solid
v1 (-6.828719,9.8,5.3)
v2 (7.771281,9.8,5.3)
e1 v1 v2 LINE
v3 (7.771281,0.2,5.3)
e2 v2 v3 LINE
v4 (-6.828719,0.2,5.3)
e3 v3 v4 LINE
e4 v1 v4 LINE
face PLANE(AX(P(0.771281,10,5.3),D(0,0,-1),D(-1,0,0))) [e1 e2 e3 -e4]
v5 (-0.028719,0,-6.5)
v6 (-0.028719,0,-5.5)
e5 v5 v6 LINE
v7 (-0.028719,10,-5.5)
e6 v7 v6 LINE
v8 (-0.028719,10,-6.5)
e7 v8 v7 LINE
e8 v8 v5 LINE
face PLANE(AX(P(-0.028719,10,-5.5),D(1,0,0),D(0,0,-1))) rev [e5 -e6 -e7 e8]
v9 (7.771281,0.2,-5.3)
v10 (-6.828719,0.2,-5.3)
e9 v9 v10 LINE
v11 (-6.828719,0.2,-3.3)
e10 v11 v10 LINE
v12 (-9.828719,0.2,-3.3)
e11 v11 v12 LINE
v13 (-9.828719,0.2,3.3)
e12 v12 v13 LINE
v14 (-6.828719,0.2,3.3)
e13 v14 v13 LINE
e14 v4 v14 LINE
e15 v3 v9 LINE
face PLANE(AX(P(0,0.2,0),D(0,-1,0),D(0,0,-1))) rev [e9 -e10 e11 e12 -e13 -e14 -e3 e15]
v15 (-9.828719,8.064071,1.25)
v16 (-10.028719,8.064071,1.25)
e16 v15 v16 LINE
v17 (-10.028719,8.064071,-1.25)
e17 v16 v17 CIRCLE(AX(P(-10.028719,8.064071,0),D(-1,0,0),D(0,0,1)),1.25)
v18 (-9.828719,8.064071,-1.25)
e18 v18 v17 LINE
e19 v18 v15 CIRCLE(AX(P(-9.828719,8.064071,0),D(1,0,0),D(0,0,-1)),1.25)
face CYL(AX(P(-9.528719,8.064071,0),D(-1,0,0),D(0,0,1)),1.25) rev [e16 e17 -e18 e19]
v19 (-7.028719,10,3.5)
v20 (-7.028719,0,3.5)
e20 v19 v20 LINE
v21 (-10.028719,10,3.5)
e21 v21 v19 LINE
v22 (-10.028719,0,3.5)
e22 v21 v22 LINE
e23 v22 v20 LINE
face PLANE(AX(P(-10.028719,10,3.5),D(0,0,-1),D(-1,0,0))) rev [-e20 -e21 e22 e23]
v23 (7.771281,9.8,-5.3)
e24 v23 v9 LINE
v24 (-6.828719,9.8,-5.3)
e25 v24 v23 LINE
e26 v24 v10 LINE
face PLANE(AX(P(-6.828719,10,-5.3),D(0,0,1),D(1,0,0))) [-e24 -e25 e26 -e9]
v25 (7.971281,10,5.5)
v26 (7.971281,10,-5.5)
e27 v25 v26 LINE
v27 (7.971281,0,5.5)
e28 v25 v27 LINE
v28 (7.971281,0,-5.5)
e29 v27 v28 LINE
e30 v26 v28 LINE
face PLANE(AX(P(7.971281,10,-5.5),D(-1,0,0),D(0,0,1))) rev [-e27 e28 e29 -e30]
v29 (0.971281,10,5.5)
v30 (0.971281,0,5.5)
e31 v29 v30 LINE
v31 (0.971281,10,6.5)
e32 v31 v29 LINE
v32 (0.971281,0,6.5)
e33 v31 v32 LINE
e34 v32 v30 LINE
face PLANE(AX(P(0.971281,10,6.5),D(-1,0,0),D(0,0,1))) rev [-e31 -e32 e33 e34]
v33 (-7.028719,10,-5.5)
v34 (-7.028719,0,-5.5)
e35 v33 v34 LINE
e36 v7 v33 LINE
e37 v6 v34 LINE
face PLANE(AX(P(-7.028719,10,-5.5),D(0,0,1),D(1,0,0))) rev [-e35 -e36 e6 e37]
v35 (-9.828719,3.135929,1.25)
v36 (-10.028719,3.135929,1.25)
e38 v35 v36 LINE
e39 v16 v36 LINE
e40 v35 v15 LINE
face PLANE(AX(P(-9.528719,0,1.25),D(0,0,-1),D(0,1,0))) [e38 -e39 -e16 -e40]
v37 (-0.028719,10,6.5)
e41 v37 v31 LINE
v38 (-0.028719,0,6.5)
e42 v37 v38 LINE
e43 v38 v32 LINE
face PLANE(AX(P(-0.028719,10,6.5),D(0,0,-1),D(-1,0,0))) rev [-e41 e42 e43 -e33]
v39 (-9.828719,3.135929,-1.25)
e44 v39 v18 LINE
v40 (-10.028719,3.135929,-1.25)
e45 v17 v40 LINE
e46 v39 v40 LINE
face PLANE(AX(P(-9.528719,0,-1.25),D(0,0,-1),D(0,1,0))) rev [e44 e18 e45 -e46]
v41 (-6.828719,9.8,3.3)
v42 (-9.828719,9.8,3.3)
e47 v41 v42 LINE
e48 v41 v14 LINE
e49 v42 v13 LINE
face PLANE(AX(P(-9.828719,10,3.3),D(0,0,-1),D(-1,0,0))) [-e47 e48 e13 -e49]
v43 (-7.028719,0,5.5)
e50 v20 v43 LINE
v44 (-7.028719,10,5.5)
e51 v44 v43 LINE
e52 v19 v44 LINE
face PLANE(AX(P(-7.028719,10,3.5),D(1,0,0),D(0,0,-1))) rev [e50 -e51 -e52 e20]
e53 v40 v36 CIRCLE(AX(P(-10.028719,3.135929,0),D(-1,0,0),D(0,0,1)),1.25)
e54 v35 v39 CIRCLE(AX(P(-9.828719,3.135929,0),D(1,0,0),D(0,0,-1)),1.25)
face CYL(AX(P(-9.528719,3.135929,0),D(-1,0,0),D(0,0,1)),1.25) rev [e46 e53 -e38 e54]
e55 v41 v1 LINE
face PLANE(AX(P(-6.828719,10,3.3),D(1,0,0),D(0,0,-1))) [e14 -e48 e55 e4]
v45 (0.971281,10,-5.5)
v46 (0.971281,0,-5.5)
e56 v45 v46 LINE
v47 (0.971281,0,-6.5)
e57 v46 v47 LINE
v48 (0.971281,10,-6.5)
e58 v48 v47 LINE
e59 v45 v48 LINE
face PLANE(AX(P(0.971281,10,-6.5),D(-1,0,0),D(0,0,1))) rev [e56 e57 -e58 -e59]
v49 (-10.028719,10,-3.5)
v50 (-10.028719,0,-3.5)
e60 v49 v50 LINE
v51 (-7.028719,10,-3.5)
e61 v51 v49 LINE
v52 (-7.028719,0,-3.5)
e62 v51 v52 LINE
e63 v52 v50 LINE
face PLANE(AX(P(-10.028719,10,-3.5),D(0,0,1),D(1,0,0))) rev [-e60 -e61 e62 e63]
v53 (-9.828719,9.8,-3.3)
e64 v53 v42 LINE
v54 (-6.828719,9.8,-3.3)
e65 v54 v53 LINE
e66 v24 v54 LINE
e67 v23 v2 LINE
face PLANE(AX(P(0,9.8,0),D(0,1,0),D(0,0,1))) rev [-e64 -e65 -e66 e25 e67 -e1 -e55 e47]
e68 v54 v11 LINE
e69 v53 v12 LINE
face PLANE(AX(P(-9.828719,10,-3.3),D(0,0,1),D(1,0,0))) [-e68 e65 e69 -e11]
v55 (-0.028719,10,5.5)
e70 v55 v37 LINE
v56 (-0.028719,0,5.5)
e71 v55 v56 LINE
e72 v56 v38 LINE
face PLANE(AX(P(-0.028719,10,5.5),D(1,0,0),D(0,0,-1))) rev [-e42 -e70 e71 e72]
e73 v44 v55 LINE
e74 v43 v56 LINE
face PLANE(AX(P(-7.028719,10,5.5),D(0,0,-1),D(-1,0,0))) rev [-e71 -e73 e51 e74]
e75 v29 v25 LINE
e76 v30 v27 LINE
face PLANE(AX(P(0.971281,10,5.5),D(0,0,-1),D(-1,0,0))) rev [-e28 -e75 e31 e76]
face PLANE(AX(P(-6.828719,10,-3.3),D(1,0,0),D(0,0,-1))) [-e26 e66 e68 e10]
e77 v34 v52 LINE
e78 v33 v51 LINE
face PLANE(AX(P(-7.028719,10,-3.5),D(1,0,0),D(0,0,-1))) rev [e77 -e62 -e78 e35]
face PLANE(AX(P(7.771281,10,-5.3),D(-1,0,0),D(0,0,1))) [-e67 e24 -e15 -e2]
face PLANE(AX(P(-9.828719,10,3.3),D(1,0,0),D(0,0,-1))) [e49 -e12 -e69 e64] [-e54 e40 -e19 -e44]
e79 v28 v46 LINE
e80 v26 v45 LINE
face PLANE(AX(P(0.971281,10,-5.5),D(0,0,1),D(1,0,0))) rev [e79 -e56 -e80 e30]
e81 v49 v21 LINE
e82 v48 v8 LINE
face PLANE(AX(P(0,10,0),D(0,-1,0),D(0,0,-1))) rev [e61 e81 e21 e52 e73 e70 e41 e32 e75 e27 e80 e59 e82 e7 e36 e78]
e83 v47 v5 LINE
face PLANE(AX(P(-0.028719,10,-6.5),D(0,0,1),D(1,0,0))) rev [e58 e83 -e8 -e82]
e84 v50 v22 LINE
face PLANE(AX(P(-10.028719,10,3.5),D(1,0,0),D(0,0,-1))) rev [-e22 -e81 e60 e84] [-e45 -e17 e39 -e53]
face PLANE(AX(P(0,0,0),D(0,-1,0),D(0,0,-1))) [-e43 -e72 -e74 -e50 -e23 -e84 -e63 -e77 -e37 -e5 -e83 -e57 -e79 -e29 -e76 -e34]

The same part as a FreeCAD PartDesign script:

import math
import FreeCAD as App
import Part
import Sketcher
from FreeCAD import Vector
Q = App.Units.Quantity


def add_polygon(sketch, points):
    """Adds a closed chain of lines whose ends are joined by coincident constraints."""
    first, n = sketch.GeometryCount, len(points)
    for a, b in zip(points, points[1:] + points[:1]):
        sketch.addGeometry(Part.LineSegment(App.Vector(*a, 0), App.Vector(*b, 0)), False)
    for i in range(n):
        sketch.addConstraint(Sketcher.Constraint("Coincident", first + i, 2, first + (i + 1) % n, 1))

doc = App.newDocument("Part")
params = doc.addObject("Spreadsheet::Sheet", "Params")
for row, (alias, value) in enumerate([
    ("sketch1_width", "3 mm"),
    ("sketch1_width2", "7 mm"),
    ("sketch1_width3", "1 mm"),
    ("sketch1_height", "2 mm"),
    ("sketch1_width4", "14.6 mm"),
    ("pad1_length", "10 mm"),
    ("sketch2_width", "3 mm"),
    ("sketch2_height", "2 mm"),
    ("sketch2_width2", "14.6 mm"),
    ("sketch2_height2", "10.6 mm"),
    ("pad2_length", "0.2 mm"),
    ("sketch3_width", "3 mm"),
    ("sketch3_height", "2 mm"),
    ("sketch3_width2", "14.6 mm"),
    ("sketch3_height2", "10.6 mm"),
    ("pad3_length", "0.2 mm"),
    ("sketch4_radius", "1.25 mm"),
    ("pocket1_length", "0.5 mm"),
], start=1):
    params.set(f"A{row}", alias)
    params.set(f"B{row}", "=" + value)
    params.setAlias(f"B{row}", alias)

body = doc.addObject("PartDesign::Body", "Body")

# Sketch on XZ plane
sketch1 = body.newObject("Sketcher::SketchObject", "Sketch")
sketch1.AttachmentSupport = (doc.getObject("XZ_Plane"), [""])
sketch1.MapMode = "FlatFace"
add_polygon(sketch1, [(-10.028719, -3.5), (-10.028719, 3.5), (-7.028719, 3.5), (-7.028719, 5.5), (-0.028719, 5.5), (-0.028719, 6.5), (0.971281, 6.5), (0.971281, 5.5), (7.971281, 5.5), (7.971281, -5.5), (0.971281, -5.5), (0.971281, -6.5), (-0.028719, -6.5), (-0.028719, -5.5), (-7.028719, -5.5), (-7.028719, -3.5)])  # lines 0-15
add_polygon(sketch1, [(-9.828719, -3.3), (-6.828719, -3.3), (-6.828719, -5.3), (7.771281, -5.3), (7.771281, 5.3), (-6.828719, 5.3), (-6.828719, 3.3), (-9.828719, 3.3)])  # lines 16-23
sketch1.addConstraint([
    Sketcher.Constraint("Vertical", 0),
    Sketcher.Constraint("Horizontal", 1),
    Sketcher.Constraint("Vertical", 2),
    Sketcher.Constraint("Horizontal", 3),
    Sketcher.Constraint("Vertical", 4),
    Sketcher.Constraint("Horizontal", 5),
    Sketcher.Constraint("Vertical", 6),
    Sketcher.Constraint("Horizontal", 7),
    Sketcher.Constraint("Vertical", 8),
    Sketcher.Constraint("Horizontal", 9),
    Sketcher.Constraint("Vertical", 10),
    Sketcher.Constraint("Horizontal", 11),
    Sketcher.Constraint("Vertical", 12),
    Sketcher.Constraint("Horizontal", 13),
    Sketcher.Constraint("Vertical", 14),
    Sketcher.Constraint("Horizontal", 15),
    Sketcher.Constraint("Horizontal", 16),
    Sketcher.Constraint("Vertical", 17),
    Sketcher.Constraint("Horizontal", 18),
    Sketcher.Constraint("Vertical", 19),
    Sketcher.Constraint("Horizontal", 20),
    Sketcher.Constraint("Vertical", 21),
    Sketcher.Constraint("Horizontal", 22),
    Sketcher.Constraint("Vertical", 23),
    Sketcher.Constraint("Symmetric", 6, 2, 9, 2, -1),
    Sketcher.Constraint("Symmetric", 4, 2, 11, 2, -1),
    Sketcher.Constraint("Symmetric", 2, 2, 13, 2, -1),
    Sketcher.Constraint("Symmetric", 17, 2, 20, 2, -1),
    Sketcher.Constraint("Horizontal", 3, 2, 6, 2),
    Sketcher.Constraint("Equal", 3, 7),
    Sketcher.Constraint("Equal", 15, 16),
    Sketcher.Constraint("Equal", 13, 0),
    Sketcher.Constraint("Equal", 11, 4),
    Sketcher.Constraint("Equal", 2, 14),
    Sketcher.Constraint("Equal", 14, 17),
    Sketcher.Constraint("Equal", 17, 21),
    Sketcher.Constraint("DistanceX", 1, 1, 1, 2, Q("3 mm")),
    Sketcher.Constraint("DistanceX", 3, 1, 3, 2, Q("7 mm")),
    Sketcher.Constraint("DistanceX", 5, 1, 5, 2, Q("1 mm")),
    Sketcher.Constraint("DistanceY", 2, 1, 2, 2, Q("2 mm")),
    Sketcher.Constraint("DistanceX", 18, 1, 18, 2, Q("14.6 mm")),
    Sketcher.Constraint("DistanceY", 19, 1, 19, 2, Q("10.6 mm")),
    Sketcher.Constraint("DistanceX", 14, 2, 16, 2, Q("0.2 mm")),
    Sketcher.Constraint("DistanceX", 0, 2, -1, 1, Q("10.028719 mm")),
])
sketch1.setExpression("Constraints[60]", "Params.sketch1_width")
sketch1.setExpression("Constraints[61]", "Params.sketch1_width2")
sketch1.setExpression("Constraints[62]", "Params.sketch1_width3")
sketch1.setExpression("Constraints[63]", "Params.sketch1_height")
sketch1.setExpression("Constraints[64]", "Params.sketch1_width4")
pad1 = body.newObject("PartDesign::Pad", "Pad")
pad1.Profile = sketch1
pad1.setExpression("Length", "Params.pad1_length")
pad1.Reversed = True

# Sketch on XZ plane
sketch2 = body.newObject("Sketcher::SketchObject", "Sketch001")
sketch2.AttachmentSupport = (doc.getObject("XZ_Plane"), [""])
sketch2.MapMode = "FlatFace"
add_polygon(sketch2, [(7.771281, -5.3), (7.771281, 5.3), (-6.828719, 5.3), (-6.828719, 3.3), (-9.828719, 3.3), (-9.828719, -3.3), (-6.828719, -3.3), (-6.828719, -5.3)])  # lines 0-7
sketch2.addConstraint([
    Sketcher.Constraint("Vertical", 0),
    Sketcher.Constraint("Horizontal", 1),
    Sketcher.Constraint("Vertical", 2),
    Sketcher.Constraint("Horizontal", 3),
    Sketcher.Constraint("Vertical", 4),
    Sketcher.Constraint("Horizontal", 5),
    Sketcher.Constraint("Vertical", 6),
    Sketcher.Constraint("Horizontal", 7),
    Sketcher.Constraint("Symmetric", 2, 2, 5, 2, -1),
    Sketcher.Constraint("Equal", 2, 6),
    Sketcher.Constraint("DistanceX", 3, 2, 3, 1, Q("3 mm")),
    Sketcher.Constraint("DistanceY", 2, 2, 2, 1, Q("2 mm")),
    Sketcher.Constraint("DistanceX", 1, 2, 1, 1, Q("14.6 mm")),
    Sketcher.Constraint("DistanceY", 0, 1, 0, 2, Q("10.6 mm")),
    Sketcher.Constraint("DistanceX", -1, 1, 0, 2, Q("7.771281 mm")),
])
sketch2.setExpression("Constraints[18]", "Params.sketch2_width")
sketch2.setExpression("Constraints[19]", "Params.sketch2_height")
sketch2.setExpression("Constraints[20]", "Params.sketch2_width2")
sketch2.setExpression("Constraints[21]", "Params.sketch2_height2")
pad2 = body.newObject("PartDesign::Pad", "Pad001")
pad2.Profile = sketch2
pad2.setExpression("Length", "Params.pad2_length")
pad2.Reversed = True

# Sketch on XZ plane
sketch3 = body.newObject("Sketcher::SketchObject", "Sketch002")
sketch3.AttachmentSupport = (doc.getObject("XZ_Plane"), [""])
sketch3.MapMode = "FlatFace"
sketch3.AttachmentOffset = App.Placement(Vector(0, 0, -10), App.Rotation())
add_polygon(sketch3, [(-6.828719, 3.3), (-6.828719, 5.3), (7.771281, 5.3), (7.771281, -5.3), (-6.828719, -5.3), (-6.828719, -3.3), (-9.828719, -3.3), (-9.828719, 3.3)])  # lines 0-7
sketch3.addConstraint([
    Sketcher.Constraint("Vertical", 0),
    Sketcher.Constraint("Horizontal", 1),
    Sketcher.Constraint("Vertical", 2),
    Sketcher.Constraint("Horizontal", 3),
    Sketcher.Constraint("Vertical", 4),
    Sketcher.Constraint("Horizontal", 5),
    Sketcher.Constraint("Vertical", 6),
    Sketcher.Constraint("Horizontal", 7),
    Sketcher.Constraint("Symmetric", 0, 2, 3, 2, -1),
    Sketcher.Constraint("Equal", 0, 4),
    Sketcher.Constraint("DistanceX", 5, 2, 5, 1, Q("3 mm")),
    Sketcher.Constraint("DistanceY", 0, 1, 0, 2, Q("2 mm")),
    Sketcher.Constraint("DistanceX", 1, 1, 1, 2, Q("14.6 mm")),
    Sketcher.Constraint("DistanceY", 2, 2, 2, 1, Q("10.6 mm")),
    Sketcher.Constraint("DistanceX", 0, 2, -1, 1, Q("6.828719 mm")),
])
sketch3.setExpression("Constraints[18]", "Params.sketch3_width")
sketch3.setExpression("Constraints[19]", "Params.sketch3_height")
sketch3.setExpression("Constraints[20]", "Params.sketch3_width2")
sketch3.setExpression("Constraints[21]", "Params.sketch3_height2")
pad3 = body.newObject("PartDesign::Pad", "Pad002")
pad3.Profile = sketch3
pad3.setExpression("Length", "Params.pad3_length")

# Sketch on YZ plane
sketch4 = body.newObject("Sketcher::SketchObject", "Sketch003")
sketch4.AttachmentSupport = (doc.getObject("YZ_Plane"), [""])
sketch4.MapMode = "FlatFace"
sketch4.AttachmentOffset = App.Placement(Vector(0, 0, -10.028719), App.Rotation())
sketch4.addGeometry([
    Part.ArcOfCircle(Part.Circle(Vector(8.064071, 0, 0), Vector(0, 0, 1), 1.25), math.radians(0), math.radians(90)),  # 0
    Part.ArcOfCircle(Part.Circle(Vector(8.064071, 0, 0), Vector(0, 0, 1), 1.25), math.radians(-90), math.radians(0)),  # 1
    Part.LineSegment(Vector(8.064071, -1.25, 0), Vector(3.135929, -1.25, 0)),  # 2
    Part.ArcOfCircle(Part.Circle(Vector(3.135929, 0, 0), Vector(0, 0, 1), 1.25), math.radians(180), math.radians(270)),  # 3
    Part.ArcOfCircle(Part.Circle(Vector(3.135929, 0, 0), Vector(0, 0, 1), 1.25), math.radians(90), math.radians(180)),  # 4
    Part.LineSegment(Vector(3.135929, 1.25, 0), Vector(8.064071, 1.25, 0)),  # 5
], False)
sketch4.addConstraint([
    Sketcher.Constraint("Tangent", 0, 1, 1, 2),
    Sketcher.Constraint("Tangent", 1, 1, 2, 1),
    Sketcher.Constraint("Tangent", 2, 2, 3, 2),
    Sketcher.Constraint("Tangent", 3, 1, 4, 2),
    Sketcher.Constraint("Tangent", 4, 1, 5, 1),
    Sketcher.Constraint("Tangent", 5, 2, 0, 2),
    Sketcher.Constraint("Horizontal", 2),
    Sketcher.Constraint("Horizontal", 5),
    Sketcher.Constraint("Equal", 0, 1),
    Sketcher.Constraint("Equal", 1, 3),
    Sketcher.Constraint("PointOnObject", 0, 3, -1),
    Sketcher.Constraint("PointOnObject", 0, 1, -1),
    Sketcher.Constraint("PointOnObject", 3, 1, -1),
    Sketcher.Constraint("Radius", 0, Q("1.25 mm")),
    Sketcher.Constraint("DistanceX", 2, 2, 2, 1, Q("4.928143 mm")),
    Sketcher.Constraint("DistanceX", -1, 1, 0, 3, Q("8.064071 mm")),
])
sketch4.setExpression("Constraints[13]", "Params.sketch4_radius")
pocket1 = body.newObject("PartDesign::Pocket", "Pocket")
pocket1.Profile = sketch4
pocket1.setExpression("Length", "Params.pocket1_length")
pocket1.Reversed = True

doc.recompute()
